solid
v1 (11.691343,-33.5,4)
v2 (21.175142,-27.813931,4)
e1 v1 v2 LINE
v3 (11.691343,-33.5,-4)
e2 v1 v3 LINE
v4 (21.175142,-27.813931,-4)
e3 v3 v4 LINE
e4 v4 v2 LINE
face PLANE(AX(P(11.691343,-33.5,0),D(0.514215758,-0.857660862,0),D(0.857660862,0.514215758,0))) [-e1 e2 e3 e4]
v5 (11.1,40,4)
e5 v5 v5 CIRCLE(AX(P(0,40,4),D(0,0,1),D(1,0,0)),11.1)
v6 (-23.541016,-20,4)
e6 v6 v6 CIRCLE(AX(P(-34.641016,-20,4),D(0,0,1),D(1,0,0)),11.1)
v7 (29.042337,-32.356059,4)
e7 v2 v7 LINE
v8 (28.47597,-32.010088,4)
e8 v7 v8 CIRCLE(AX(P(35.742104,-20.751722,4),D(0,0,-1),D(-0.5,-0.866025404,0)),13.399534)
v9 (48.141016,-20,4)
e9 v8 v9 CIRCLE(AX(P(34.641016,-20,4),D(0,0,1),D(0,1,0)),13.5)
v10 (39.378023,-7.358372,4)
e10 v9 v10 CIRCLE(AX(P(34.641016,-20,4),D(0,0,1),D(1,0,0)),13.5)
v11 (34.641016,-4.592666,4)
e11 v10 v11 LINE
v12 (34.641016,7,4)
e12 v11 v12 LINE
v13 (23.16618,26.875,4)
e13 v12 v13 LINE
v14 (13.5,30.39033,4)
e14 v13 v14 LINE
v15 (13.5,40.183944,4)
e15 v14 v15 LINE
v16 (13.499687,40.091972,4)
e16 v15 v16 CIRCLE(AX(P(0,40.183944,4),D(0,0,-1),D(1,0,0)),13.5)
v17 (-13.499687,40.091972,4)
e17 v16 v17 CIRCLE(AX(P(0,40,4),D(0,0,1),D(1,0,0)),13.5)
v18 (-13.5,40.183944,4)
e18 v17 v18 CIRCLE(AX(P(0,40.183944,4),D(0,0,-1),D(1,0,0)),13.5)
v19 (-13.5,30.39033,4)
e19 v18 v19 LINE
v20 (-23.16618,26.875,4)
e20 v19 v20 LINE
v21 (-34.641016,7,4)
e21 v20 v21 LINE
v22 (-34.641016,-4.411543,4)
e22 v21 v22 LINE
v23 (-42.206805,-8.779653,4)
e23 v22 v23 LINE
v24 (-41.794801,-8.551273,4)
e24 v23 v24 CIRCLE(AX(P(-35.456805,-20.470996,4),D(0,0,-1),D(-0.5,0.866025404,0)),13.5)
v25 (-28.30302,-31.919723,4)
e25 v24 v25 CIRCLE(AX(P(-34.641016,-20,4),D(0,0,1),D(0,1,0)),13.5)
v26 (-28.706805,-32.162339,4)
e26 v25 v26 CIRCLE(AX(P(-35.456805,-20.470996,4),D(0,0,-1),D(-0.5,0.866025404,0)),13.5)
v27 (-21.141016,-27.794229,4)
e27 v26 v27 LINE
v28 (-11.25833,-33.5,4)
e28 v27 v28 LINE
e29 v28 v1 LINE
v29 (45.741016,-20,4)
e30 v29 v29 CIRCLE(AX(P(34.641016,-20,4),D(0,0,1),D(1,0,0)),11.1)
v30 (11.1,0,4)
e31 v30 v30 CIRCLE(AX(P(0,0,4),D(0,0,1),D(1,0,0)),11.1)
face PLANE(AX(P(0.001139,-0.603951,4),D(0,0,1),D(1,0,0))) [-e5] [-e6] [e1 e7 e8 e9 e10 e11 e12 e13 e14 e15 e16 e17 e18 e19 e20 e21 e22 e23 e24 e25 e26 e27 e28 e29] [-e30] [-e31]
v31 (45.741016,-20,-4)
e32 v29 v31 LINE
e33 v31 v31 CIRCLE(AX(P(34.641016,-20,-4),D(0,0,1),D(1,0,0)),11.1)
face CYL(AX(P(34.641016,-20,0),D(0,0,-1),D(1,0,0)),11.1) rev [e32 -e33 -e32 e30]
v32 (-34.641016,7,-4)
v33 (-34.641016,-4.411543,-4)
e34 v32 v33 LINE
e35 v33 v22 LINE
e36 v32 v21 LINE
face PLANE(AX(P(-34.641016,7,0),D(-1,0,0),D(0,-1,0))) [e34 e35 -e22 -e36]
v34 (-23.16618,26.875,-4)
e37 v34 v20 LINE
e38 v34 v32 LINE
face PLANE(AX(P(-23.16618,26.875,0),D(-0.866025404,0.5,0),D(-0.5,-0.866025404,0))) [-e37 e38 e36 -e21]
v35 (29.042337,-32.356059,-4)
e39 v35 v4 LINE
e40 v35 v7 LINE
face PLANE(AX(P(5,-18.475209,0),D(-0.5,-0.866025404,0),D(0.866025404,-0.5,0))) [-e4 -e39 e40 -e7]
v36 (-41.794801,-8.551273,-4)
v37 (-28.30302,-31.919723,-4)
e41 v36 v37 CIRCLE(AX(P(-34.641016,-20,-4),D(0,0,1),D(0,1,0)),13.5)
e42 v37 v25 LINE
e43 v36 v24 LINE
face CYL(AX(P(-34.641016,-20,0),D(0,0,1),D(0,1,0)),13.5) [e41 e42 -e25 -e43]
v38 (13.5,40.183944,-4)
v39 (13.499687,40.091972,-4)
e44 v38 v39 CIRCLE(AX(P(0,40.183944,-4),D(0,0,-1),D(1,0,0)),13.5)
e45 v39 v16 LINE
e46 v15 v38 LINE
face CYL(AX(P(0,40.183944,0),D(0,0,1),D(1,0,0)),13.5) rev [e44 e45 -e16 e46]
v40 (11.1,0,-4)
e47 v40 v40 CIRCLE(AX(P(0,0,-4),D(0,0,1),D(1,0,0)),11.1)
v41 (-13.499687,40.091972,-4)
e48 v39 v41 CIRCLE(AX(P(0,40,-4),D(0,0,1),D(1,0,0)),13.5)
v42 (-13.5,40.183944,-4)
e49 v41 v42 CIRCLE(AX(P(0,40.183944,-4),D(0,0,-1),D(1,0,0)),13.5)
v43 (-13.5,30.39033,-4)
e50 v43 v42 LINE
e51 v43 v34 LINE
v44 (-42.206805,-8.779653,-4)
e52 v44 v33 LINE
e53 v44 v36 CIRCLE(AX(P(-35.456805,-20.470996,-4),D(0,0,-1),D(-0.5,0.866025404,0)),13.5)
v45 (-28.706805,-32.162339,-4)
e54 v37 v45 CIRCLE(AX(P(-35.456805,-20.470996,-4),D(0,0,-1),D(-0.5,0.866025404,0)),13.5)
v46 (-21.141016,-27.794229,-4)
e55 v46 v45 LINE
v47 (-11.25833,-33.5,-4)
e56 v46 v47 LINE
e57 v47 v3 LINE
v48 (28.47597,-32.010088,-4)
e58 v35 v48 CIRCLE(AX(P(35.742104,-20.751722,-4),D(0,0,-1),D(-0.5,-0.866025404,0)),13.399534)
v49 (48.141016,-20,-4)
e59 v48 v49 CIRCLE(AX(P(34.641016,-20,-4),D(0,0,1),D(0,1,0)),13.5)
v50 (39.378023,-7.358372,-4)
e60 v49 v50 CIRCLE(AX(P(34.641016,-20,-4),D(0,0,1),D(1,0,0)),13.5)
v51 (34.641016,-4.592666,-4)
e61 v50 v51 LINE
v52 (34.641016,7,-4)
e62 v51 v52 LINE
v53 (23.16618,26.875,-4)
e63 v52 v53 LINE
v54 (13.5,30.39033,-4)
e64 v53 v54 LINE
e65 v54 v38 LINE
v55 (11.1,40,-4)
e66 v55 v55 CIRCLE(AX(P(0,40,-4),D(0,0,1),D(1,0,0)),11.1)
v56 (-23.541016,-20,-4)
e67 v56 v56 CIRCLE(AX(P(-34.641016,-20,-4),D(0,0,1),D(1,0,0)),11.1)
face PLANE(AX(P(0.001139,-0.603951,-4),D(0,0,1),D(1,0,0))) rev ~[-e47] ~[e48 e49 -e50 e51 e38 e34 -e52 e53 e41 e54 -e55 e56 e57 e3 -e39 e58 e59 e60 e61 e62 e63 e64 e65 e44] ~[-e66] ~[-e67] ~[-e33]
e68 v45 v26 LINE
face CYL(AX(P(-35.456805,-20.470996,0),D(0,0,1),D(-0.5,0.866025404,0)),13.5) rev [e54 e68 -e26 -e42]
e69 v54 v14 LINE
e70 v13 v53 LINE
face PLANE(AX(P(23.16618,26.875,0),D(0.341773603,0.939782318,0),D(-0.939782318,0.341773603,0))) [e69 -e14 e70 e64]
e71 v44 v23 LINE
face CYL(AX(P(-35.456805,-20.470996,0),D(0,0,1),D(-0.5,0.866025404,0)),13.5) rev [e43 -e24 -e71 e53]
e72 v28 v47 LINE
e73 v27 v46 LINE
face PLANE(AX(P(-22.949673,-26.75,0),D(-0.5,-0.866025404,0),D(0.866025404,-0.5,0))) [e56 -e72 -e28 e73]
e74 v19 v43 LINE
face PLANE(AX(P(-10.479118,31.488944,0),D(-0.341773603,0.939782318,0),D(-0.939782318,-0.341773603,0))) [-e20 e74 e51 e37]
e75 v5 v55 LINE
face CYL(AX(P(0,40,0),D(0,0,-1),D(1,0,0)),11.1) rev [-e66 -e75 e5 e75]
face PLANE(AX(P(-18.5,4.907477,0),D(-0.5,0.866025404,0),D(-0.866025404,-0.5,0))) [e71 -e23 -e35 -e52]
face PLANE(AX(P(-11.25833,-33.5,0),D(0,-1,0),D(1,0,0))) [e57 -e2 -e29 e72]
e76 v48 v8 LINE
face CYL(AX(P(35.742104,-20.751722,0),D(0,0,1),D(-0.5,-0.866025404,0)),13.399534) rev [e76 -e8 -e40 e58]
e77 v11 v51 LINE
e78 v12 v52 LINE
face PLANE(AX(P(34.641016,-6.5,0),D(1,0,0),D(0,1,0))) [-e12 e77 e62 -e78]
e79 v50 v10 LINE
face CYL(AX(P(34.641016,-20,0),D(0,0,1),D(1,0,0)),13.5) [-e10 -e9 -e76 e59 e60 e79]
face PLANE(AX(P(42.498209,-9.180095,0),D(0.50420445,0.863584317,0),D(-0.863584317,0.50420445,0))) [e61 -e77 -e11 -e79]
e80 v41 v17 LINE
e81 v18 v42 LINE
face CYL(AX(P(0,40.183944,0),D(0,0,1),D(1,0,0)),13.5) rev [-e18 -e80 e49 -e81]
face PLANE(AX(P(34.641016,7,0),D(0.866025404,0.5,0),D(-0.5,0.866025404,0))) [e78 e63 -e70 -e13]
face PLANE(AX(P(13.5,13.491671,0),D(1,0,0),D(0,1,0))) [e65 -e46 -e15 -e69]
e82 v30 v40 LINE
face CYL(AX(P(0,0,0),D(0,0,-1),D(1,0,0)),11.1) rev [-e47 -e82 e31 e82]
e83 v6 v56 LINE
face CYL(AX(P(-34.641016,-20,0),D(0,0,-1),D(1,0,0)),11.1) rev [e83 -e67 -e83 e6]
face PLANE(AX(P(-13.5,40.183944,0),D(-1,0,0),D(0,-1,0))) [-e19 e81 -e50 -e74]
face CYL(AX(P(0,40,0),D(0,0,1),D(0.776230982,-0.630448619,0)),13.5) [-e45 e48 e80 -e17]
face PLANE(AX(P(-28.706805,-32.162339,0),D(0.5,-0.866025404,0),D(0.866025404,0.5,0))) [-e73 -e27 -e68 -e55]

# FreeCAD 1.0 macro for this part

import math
import FreeCAD as App
import Part
import Sketcher
from FreeCAD import Vector
Q = App.Units.Quantity

doc = App.newDocument("Part")
body = doc.addObject("PartDesign::Body", "Body")

# Sketch on XY plane
sketch1 = body.newObject("Sketcher::SketchObject", "Sketch")
sketch1.AttachmentSupport = (doc.getObject("XY_Plane"), [""])
sketch1.MapMode = "FlatFace"
sketch1.addGeometry(Part.LineSegment(Vector(-18, 5, 0), Vector(-42, -9, 0)), False)
sketch1.addGeometry(Part.ArcOfCircle(Part.Circle(Vector(-35, -20, 0), Vector(0, 0, 1), 14), math.radians(-60), math.radians(120)), False)
sketch1.addGeometry(Part.LineSegment(Vector(-29, -32, 0), Vector(-5, -18, 0)), False)
sketch1.addGeometry(Part.ArcOfCircle(Part.Circle(Vector(0, -27, 0), Vector(0, 0, 1), 10), math.radians(60), math.radians(120)), False)
sketch1.addGeometry(Part.LineSegment(Vector(5, -18, 0), Vector(29, -32, 0)), False)
sketch1.addGeometry(Part.ArcOfCircle(Part.Circle(Vector(36, -21, 0), Vector(0, 0, 1), 13), math.radians(60), math.radians(240)), False)
sketch1.addGeometry(Part.LineSegment(Vector(42, -9, 0), Vector(18, 5, 0)), False)
sketch1.addGeometry(Part.ArcOfCircle(Part.Circle(Vector(24, 13, 0), Vector(0, 0, 1), 10), math.radians(180), math.radians(240)), False)
sketch1.addGeometry(Part.LineSegment(Vector(14, 13, 0), Vector(14, 40, 0)), False)
sketch1.addGeometry(Part.ArcOfCircle(Part.Circle(Vector(0, 40, 0), Vector(0, 0, 1), 14), math.radians(180), math.radians(360)), False)
sketch1.addGeometry(Part.LineSegment(Vector(-14, 40, 0), Vector(-14, 14, 0)), False)
sketch1.addGeometry(Part.ArcOfCircle(Part.Circle(Vector(-24, 14, 0), Vector(0, 0, 1), 10), math.radians(-60), math.radians(0)), False)
sketch1.addGeometry(Part.Circle(Vector(0, 0, 0), Vector(0, 0, 1), 13), False)
sketch1.addConstraint(Sketcher.Constraint("Tangent", 0, 2, 1, 2))
sketch1.addConstraint(Sketcher.Constraint("Tangent", 1, 1, 2, 1))
sketch1.addConstraint(Sketcher.Constraint("Tangent", 2, 2, 3, 2))
sketch1.addConstraint(Sketcher.Constraint("Tangent", 3, 1, 4, 1))
sketch1.addConstraint(Sketcher.Constraint("Tangent", 4, 2, 5, 2))
sketch1.addConstraint(Sketcher.Constraint("Tangent", 5, 1, 6, 1))
sketch1.addConstraint(Sketcher.Constraint("Tangent", 6, 2, 7, 2))
sketch1.addConstraint(Sketcher.Constraint("Tangent", 7, 1, 8, 1))
sketch1.addConstraint(Sketcher.Constraint("Tangent", 8, 2, 9, 2))
sketch1.addConstraint(Sketcher.Constraint("Tangent", 9, 1, 10, 1))
sketch1.addConstraint(Sketcher.Constraint("Tangent", 10, 2, 11, 2))
sketch1.addConstraint(Sketcher.Constraint("Tangent", 11, 1, 0, 1))
sketch1.addConstraint(Sketcher.Constraint("Vertical", 8))
sketch1.addConstraint(Sketcher.Constraint("Vertical", 10))
sketch1.addConstraint(Sketcher.Constraint("Coincident", 12, 3, -1, 1))
sketch1.addConstraint(Sketcher.Constraint("Equal", 3, 7))
sketch1.addConstraint(Sketcher.Constraint("Equal", 1, 9))
sketch1.addConstraint(Sketcher.Constraint("Equal", 7, 11))
sketch1.addConstraint(Sketcher.Constraint("Symmetric", 2, 2, 3, 1, -2))
sketch1.addConstraint(Sketcher.Constraint("PointOnObject", 9, 3, -2))
sketch1.addConstraint(Sketcher.Constraint("Parallel", 0, 2))
sketch1.addConstraint(Sketcher.Constraint("Equal", 0, 2))
sketch1.addConstraint(Sketcher.Constraint("Diameter", 12, Q("26 mm")))
sketch1.addConstraint(Sketcher.Constraint("Radius", 3, Q("10 mm")))
sketch1.addConstraint(Sketcher.Constraint("Radius", 1, Q("13.5 mm")))
sketch1.addConstraint(Sketcher.Constraint("Radius", 5, Q("13.399534 mm")))
sketch1.addConstraint(Sketcher.Constraint("Distance", 4, Q("27.7617 mm")))
sketch1.addConstraint(Sketcher.Constraint("Distance", 0, Q("27.374261 mm")))
sketch1.addConstraint(Sketcher.Constraint("Distance", 6, Q("27.83776 mm")))
sketch1.addConstraint(Sketcher.Constraint("DistanceY", 8, 1, 8, 2, Q("26.692274 mm")))
sketch1.addConstraint(Sketcher.Constraint("DistanceY", 5, 3, -1, 1, Q("20.751722 mm")))
pad1 = body.newObject("PartDesign::Pad", "Pad")
pad1.Profile = sketch1
pad1.Length = 8
pad1.Midplane = True

# Sketch on XY plane
sketch2 = body.newObject("Sketcher::SketchObject", "Sketch001")
sketch2.AttachmentSupport = (doc.getObject("XY_Plane"), [""])
sketch2.MapMode = "FlatFace"
sketch2.addGeometry(Part.LineSegment(Vector(23, 27, 0), Vector(10, 31, 0)), False)
sketch2.addGeometry(Part.ArcOfCircle(Part.Circle(Vector(0, 40, 0), Vector(0, 0, 1), 14), math.radians(-39), math.radians(0)), False)
sketch2.addGeometry(Part.ArcOfCircle(Part.Circle(Vector(0, 40, 0), Vector(0, 0, 1), 14), math.radians(0), math.radians(219)), False)
sketch2.addGeometry(Part.LineSegment(Vector(-10, 31, 0), Vector(-23, 27, 0)), False)
sketch2.addGeometry(Part.LineSegment(Vector(-23, 27, 0), Vector(-35, 7, 0)), False)
sketch2.addGeometry(Part.LineSegment(Vector(-35, 7, 0), Vector(-35, -6, 0)), False)
sketch2.addGeometry(Part.ArcOfCircle(Part.Circle(Vector(-35, -20, 0), Vector(0, 0, 1), 14), math.radians(90), math.radians(330)), False)
sketch2.addGeometry(Part.LineSegment(Vector(-23, -27, 0), Vector(-11, -34, 0)), False)
sketch2.addGeometry(Part.LineSegment(Vector(-11, -34, 0), Vector(12, -34, 0)), False)
sketch2.addGeometry(Part.LineSegment(Vector(12, -34, 0), Vector(23, -27, 0)), False)
sketch2.addGeometry(Part.ArcOfCircle(Part.Circle(Vector(35, -20, 0), Vector(0, 0, 1), 14), math.radians(-150), math.radians(0)), False)
sketch2.addGeometry(Part.ArcOfCircle(Part.Circle(Vector(35, -20, 0), Vector(0, 0, 1), 14), math.radians(0), math.radians(90)), False)
sketch2.addGeometry(Part.LineSegment(Vector(35, -6, 0), Vector(35, 7, 0)), False)
sketch2.addGeometry(Part.LineSegment(Vector(35, 7, 0), Vector(23, 27, 0)), False)
sketch2.addGeometry(Part.Circle(Vector(-35, -20, 0), Vector(0, 0, 1), 11), False)
sketch2.addGeometry(Part.Circle(Vector(35, -20, 0), Vector(0, 0, 1), 11), False)
sketch2.addGeometry(Part.Circle(Vector(0, 0, 0), Vector(0, 0, 1), 11), False)
sketch2.addGeometry(Part.Circle(Vector(0, 40, 0), Vector(0, 0, 1), 11), False)
sketch2.addConstraint(Sketcher.Constraint("Coincident", 0, 2, 1, 1))
sketch2.addConstraint(Sketcher.Constraint("Tangent", 1, 2, 2, 1))
sketch2.addConstraint(Sketcher.Constraint("Coincident", 2, 2, 3, 1))
sketch2.addConstraint(Sketcher.Constraint("Coincident", 3, 2, 4, 1))
sketch2.addConstraint(Sketcher.Constraint("Coincident", 4, 2, 5, 1))
sketch2.addConstraint(Sketcher.Constraint("Coincident", 5, 2, 6, 1))
sketch2.addConstraint(Sketcher.Constraint("Coincident", 6, 2, 7, 1))
sketch2.addConstraint(Sketcher.Constraint("Coincident", 7, 2, 8, 1))
sketch2.addConstraint(Sketcher.Constraint("Coincident", 8, 2, 9, 1))
sketch2.addConstraint(Sketcher.Constraint("Coincident", 9, 2, 10, 1))
sketch2.addConstraint(Sketcher.Constraint("Tangent", 10, 2, 11, 1))
sketch2.addConstraint(Sketcher.Constraint("Coincident", 11, 2, 12, 1))
sketch2.addConstraint(Sketcher.Constraint("Coincident", 12, 2, 13, 1))
sketch2.addConstraint(Sketcher.Constraint("Coincident", 13, 2, 0, 1))
sketch2.addConstraint(Sketcher.Constraint("Vertical", 5))
sketch2.addConstraint(Sketcher.Constraint("Horizontal", 8))
sketch2.addConstraint(Sketcher.Constraint("Vertical", 12))
sketch2.addConstraint(Sketcher.Constraint("Coincident", 16, 3, -1, 1))
sketch2.addConstraint(Sketcher.Constraint("Coincident", 14, 3, 6, 3))
sketch2.addConstraint(Sketcher.Constraint("Coincident", 15, 3, 10, 3))
sketch2.addConstraint(Sketcher.Constraint("Coincident", 17, 3, 1, 3))
sketch2.addConstraint(Sketcher.Constraint("Equal", 1, 2))
sketch2.addConstraint(Sketcher.Constraint("Equal", 2, 6))
sketch2.addConstraint(Sketcher.Constraint("Equal", 6, 10))
sketch2.addConstraint(Sketcher.Constraint("Equal", 10, 11))
sketch2.addConstraint(Sketcher.Constraint("Equal", 14, 15))
sketch2.addConstraint(Sketcher.Constraint("Equal", 15, 16))
sketch2.addConstraint(Sketcher.Constraint("Equal", 16, 17))
sketch2.addConstraint(Sketcher.Constraint("Symmetric", 6, 3, 10, 3, -2))
sketch2.addConstraint(Sketcher.Constraint("Symmetric", 0, 2, 2, 2, -2))
sketch2.addConstraint(Sketcher.Constraint("Symmetric", 4, 2, 12, 2, -2))
sketch2.addConstraint(Sketcher.Constraint("Symmetric", 3, 2, 13, 2, -2))
sketch2.addConstraint(Sketcher.Constraint("Perpendicular", 4, 7))
sketch2.addConstraint(Sketcher.Constraint("Horizontal", 17, 3, 1, 2))
sketch2.addConstraint(Sketcher.Constraint("Horizontal", 6, 2, 9, 2))
sketch2.addConstraint(Sketcher.Constraint("Horizontal", 15, 3, 10, 2))
sketch2.addConstraint(Sketcher.Constraint("Vertical", 14, 3, 4, 2))
sketch2.addConstraint(Sketcher.Constraint("Equal", 3, 7))
sketch2.addConstraint(Sketcher.Constraint("Diameter", 14, Q("22.2 mm")))
sketch2.addConstraint(Sketcher.Constraint("Radius", 1, Q("13.5 mm")))
sketch2.addConstraint(Sketcher.Constraint("Angle", 4, Q("-120 deg")))
sketch2.addConstraint(Sketcher.Constraint("DistanceY", 5, 2, 5, 1, Q("13.5 mm")))
sketch2.addConstraint(Sketcher.Constraint("DistanceY", -1, 1, 1, 3, Q("40 mm")))
sketch2.addConstraint(Sketcher.Constraint("DistanceY", 6, 3, -1, 1, Q("20 mm")))
sketch2.addConstraint(Sketcher.Constraint("DistanceY", 7, 2, 5, 2, Q("27 mm")))
sketch2.addConstraint(Sketcher.Constraint("Distance", 0, Q("13.5 mm")))
sketch2.addConstraint(Sketcher.Constraint("DistanceY", -1, 1, 3, 2, Q("26.875 mm")))
sketch2.addConstraint(Sketcher.Constraint("DistanceX", 8, 1, 8, 2, Q("22.949673 mm")))
sketch2.addConstraint(Sketcher.Constraint("DistanceX", -1, 1, 0, 2, Q("10.479118 mm")))
pad2 = body.newObject("PartDesign::Pad", "Pad001")
pad2.Profile = sketch2
pad2.Length = 8
pad2.Midplane = True

doc.recompute()
